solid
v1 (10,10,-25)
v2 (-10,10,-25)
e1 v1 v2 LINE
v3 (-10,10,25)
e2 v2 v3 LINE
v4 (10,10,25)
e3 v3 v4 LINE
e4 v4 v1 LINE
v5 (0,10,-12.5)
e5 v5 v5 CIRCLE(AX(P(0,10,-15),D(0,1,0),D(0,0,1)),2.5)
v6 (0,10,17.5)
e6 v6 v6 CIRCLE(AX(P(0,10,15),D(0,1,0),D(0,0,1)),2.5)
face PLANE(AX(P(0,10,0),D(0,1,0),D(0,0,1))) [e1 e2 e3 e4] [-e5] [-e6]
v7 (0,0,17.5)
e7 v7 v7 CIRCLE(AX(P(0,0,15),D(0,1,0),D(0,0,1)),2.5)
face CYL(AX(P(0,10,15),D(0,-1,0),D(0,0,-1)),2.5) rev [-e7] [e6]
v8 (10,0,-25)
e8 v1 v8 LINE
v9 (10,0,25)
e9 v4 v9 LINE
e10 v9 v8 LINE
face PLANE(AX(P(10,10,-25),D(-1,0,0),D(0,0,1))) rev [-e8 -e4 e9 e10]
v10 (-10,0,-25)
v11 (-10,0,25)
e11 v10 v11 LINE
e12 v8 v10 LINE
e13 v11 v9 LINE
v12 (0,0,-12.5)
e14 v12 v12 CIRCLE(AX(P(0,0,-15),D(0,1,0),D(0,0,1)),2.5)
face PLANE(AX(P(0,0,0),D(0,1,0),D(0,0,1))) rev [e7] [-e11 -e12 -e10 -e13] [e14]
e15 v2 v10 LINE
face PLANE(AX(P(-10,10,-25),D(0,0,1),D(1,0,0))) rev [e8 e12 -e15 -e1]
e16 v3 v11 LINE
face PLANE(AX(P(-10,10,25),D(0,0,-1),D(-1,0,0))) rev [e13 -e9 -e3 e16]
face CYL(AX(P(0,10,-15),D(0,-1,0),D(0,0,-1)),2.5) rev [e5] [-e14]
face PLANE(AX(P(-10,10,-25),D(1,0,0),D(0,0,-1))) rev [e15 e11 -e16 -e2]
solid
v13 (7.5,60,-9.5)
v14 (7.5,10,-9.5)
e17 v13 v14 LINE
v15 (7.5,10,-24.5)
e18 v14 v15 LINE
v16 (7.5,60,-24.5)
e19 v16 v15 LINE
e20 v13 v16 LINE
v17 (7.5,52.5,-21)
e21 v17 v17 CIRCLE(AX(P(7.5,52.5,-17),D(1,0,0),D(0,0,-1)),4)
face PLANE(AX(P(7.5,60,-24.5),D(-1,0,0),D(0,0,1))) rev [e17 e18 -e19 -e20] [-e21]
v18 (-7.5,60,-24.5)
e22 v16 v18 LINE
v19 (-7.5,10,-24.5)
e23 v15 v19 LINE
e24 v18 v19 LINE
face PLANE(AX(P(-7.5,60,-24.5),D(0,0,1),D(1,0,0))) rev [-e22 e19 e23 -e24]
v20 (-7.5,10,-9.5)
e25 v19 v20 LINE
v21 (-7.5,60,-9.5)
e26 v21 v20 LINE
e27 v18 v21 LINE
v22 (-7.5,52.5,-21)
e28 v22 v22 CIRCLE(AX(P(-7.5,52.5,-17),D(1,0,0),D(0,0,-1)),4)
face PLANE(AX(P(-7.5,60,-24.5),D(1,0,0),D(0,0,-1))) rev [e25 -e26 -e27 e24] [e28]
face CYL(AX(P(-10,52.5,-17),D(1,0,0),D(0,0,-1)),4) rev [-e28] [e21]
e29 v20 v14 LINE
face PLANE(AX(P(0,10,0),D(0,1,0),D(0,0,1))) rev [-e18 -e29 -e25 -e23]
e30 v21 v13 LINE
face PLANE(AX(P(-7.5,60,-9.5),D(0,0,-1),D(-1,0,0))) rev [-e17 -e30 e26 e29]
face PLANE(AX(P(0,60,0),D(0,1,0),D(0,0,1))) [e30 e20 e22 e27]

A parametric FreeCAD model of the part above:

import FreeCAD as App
import Part
import Sketcher


def add_polygon(sketch, points):
    """Adds a closed chain of lines whose ends are joined by coincident constraints."""
    first, n = sketch.GeometryCount, len(points)
    for a, b in zip(points, points[1:] + points[:1]):
        sketch.addGeometry(Part.LineSegment(App.Vector(*a, 0), App.Vector(*b, 0)), False)
    for i in range(n):
        sketch.addConstraint(Sketcher.Constraint("Coincident", first + i, 2, first + (i + 1) % n, 1))

doc = App.newDocument("Part")
params = doc.addObject("Spreadsheet::Sheet", "Params")
for row, (alias, value) in enumerate([
    ("sketch1_diameter", "5 mm"),
    ("sketch1_width", "20 mm"),
    ("sketch1_height", "50 mm"),
    ("pad1_length", "10 mm"),
    ("sketch2_width", "15 mm"),
    ("pad2_length", "50 mm"),
    ("sketch3_diameter", "8 mm"),
], start=1):
    params.set(f"A{row}", alias)
    params.set(f"B{row}", "=" + value)
    params.setAlias(f"B{row}", alias)

body = doc.addObject("PartDesign::Body", "Body")

# Sketch on XZ plane
sketch1 = body.newObject("Sketcher::SketchObject", "Sketch")
sketch1.AttachmentSupport = (doc.getObject("XZ_Plane"), [""])
sketch1.MapMode = "FlatFace"
add_polygon(sketch1, [(-10, -25), (-10, 25), (10, 25), (10, -25)])  # lines 0-3
sketch1.addGeometry(Part.Circle(App.Vector(0, 15, 0), App.Vector(0, 0, 1), 2.5), False)  # 4
sketch1.addGeometry(Part.Circle(App.Vector(0, -15, 0), App.Vector(0, 0, 1), 2.5), False)  # 5
sketch1.addConstraint([
    Sketcher.Constraint("Vertical", 0),
    Sketcher.Constraint("Horizontal", 1),
    Sketcher.Constraint("Vertical", 2),
    Sketcher.Constraint("Horizontal", 3),
    Sketcher.Constraint("Equal", 4, 5),
    Sketcher.Constraint("Symmetric", 4, 3, 5, 3, -1, 1),
    Sketcher.Constraint("Symmetric", 0, 2, 2, 2, -1, 1),
    Sketcher.Constraint("PointOnObject", 4, 3, -2),
    Sketcher.Constraint("Diameter", 4, 5.0),
    Sketcher.Constraint("DistanceX", 1, 1, 1, 2, 20.0),
    Sketcher.Constraint("DistanceY", 0, 1, 0, 2, 50.0),
    Sketcher.Constraint("DistanceY", -1, 1, 4, 3, 15.0),
])
sketch1.setExpression("Constraints[12]", "Params.sketch1_diameter")
sketch1.setExpression("Constraints[13]", "Params.sketch1_width")
sketch1.setExpression("Constraints[14]", "Params.sketch1_height")
pad1 = body.newObject("PartDesign::Pad", "Pad")
pad1.Profile = sketch1
pad1.setExpression("Length", "Params.pad1_length")
pad1.Reversed = True
body2 = doc.addObject("PartDesign::Body", "Body001")

# Sketch on XZ plane
sketch2 = body2.newObject("Sketcher::SketchObject", "Sketch001")
sketch2.AttachmentSupport = (doc.getObject("XZ_Plane001"), [""])
sketch2.MapMode = "FlatFace"
sketch2.AttachmentOffset = App.Placement(App.Vector(0, 0, -10), App.Rotation())
add_polygon(sketch2, [(-8, -24), (-8, -10), (8, -10), (8, -24)])  # lines 0-3
sketch2.addConstraint([
    Sketcher.Constraint("Vertical", 0),
    Sketcher.Constraint("Horizontal", 1),
    Sketcher.Constraint("Vertical", 2),
    Sketcher.Constraint("Horizontal", 3),
    Sketcher.Constraint("Equal", 3, 0),
    Sketcher.Constraint("DistanceX", 1, 1, 1, 2, 15.0),
    Sketcher.Constraint("DistanceX", 0, 2, -1, 1, 7.5),
    Sketcher.Constraint("DistanceY", 0, 2, -1, 1, 9.5),
])
sketch2.setExpression("Constraints[9]", "Params.sketch2_width")
pad2 = body2.newObject("PartDesign::Pad", "Pad001")
pad2.Profile = sketch2
pad2.setExpression("Length", "Params.pad2_length")
pad2.Reversed = True

# Sketch on YZ plane
sketch3 = body2.newObject("Sketcher::SketchObject", "Sketch002")
sketch3.AttachmentSupport = (doc.getObject("YZ_Plane001"), [""])
sketch3.MapMode = "FlatFace"
sketch3.AttachmentOffset = App.Placement(App.Vector(0, 0, 7.5), App.Rotation())
sketch3.addGeometry(Part.Circle(App.Vector(52.5, -17, 0), App.Vector(0, 0, 1), 4), False)
sketch3.addConstraint([
    Sketcher.Constraint("Diameter", 0, 8.0),
    Sketcher.Constraint("DistanceY", 0, 3, -1, 1, 17.0),
    Sketcher.Constraint("DistanceX", -1, 1, 0, 3, 52.5),
])
sketch3.setExpression("Constraints[0]", "Params.sketch3_diameter")
pocket1 = body2.newObject("PartDesign::Pocket", "Pocket")
pocket1.Profile = sketch3
pocket1.Type = "ThroughAll"

doc.recompute()
